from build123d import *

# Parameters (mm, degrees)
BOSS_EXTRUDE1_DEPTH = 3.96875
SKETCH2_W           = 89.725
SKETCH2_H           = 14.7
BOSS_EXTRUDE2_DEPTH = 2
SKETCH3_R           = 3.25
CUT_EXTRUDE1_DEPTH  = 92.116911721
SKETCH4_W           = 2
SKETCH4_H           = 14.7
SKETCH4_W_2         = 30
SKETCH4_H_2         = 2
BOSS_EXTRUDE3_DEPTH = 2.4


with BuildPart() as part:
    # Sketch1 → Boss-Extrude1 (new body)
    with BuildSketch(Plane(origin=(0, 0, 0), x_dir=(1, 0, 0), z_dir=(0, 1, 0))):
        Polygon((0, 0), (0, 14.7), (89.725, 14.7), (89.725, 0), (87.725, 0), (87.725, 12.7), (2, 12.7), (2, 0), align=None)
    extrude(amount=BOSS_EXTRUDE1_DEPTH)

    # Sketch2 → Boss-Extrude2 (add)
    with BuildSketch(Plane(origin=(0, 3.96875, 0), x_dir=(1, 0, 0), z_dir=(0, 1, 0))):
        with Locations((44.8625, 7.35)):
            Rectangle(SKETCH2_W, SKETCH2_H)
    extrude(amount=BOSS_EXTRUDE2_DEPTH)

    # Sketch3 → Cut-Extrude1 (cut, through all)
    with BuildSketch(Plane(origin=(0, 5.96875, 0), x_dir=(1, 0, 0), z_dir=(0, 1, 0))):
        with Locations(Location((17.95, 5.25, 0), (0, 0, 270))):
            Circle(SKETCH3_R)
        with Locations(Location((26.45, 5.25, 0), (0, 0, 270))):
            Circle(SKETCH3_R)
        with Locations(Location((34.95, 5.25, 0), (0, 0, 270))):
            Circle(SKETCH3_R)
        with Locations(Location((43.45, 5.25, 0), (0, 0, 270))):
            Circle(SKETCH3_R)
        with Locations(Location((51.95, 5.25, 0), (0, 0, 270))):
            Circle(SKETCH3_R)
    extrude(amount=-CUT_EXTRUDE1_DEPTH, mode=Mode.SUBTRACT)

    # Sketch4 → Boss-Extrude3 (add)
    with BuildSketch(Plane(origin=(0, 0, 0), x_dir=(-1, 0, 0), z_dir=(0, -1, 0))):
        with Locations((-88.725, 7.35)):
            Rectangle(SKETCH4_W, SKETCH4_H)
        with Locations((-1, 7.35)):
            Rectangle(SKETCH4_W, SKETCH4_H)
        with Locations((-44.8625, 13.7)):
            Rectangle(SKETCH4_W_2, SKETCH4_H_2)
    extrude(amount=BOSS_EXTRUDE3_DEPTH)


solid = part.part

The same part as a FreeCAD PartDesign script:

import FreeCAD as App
import Part
import Sketcher

V = App.Vector

doc = App.newDocument("Part")
params = doc.addObject("Spreadsheet::Sheet", "Params")
for row, (alias, value) in enumerate([
    ("sketch1_width", "2 mm"),
    ("sketch1_height", "14.7 mm"),
    ("sketch1_height2", "12.7 mm"),
    ("pad1_length", "3.96875 mm"),
    ("sketch2_height", "14.7 mm"),
    ("pad2_length", "2 mm"),
    ("sketch3_diameter", "6.5 mm"),
    ("sketch4_width", "2 mm"),
    ("sketch4_width2", "30 mm"),
    ("sketch4_height", "14.7 mm"),
    ("pad3_length", "2.4 mm"),
], start=1):
    params.set(f"A{row}", alias)
    params.set(f"B{row}", "=" + value)
    params.setAlias(f"B{row}", alias)

body = doc.addObject("PartDesign::Body", "Body")

# Sketch on XZ plane
sketch1 = doc.addObject("Sketcher::SketchObject", "Sketch")
body.addObject(sketch1)
sketch1.AttachmentSupport = (doc.XZ_Plane, [""])
sketch1.MapMode = "FlatFace"
sketch1.addGeometry(Part.LineSegment(V(0, -14.7, 0), V(0, 0, 0)), False)
sketch1.addGeometry(Part.LineSegment(V(0, 0, 0), V(2, 0, 0)), False)
sketch1.addGeometry(Part.LineSegment(V(2, 0, 0), V(2, -12.7, 0)), False)
sketch1.addGeometry(Part.LineSegment(V(2, -12.7, 0), V(87.7, -12.7, 0)), False)
sketch1.addGeometry(Part.LineSegment(V(87.7, -12.7, 0), V(87.7, 0, 0)), False)
sketch1.addGeometry(Part.LineSegment(V(87.7, 0, 0), V(89.7, 0, 0)), False)
sketch1.addGeometry(Part.LineSegment(V(89.7, 0, 0), V(89.7, -14.7, 0)), False)
sketch1.addGeometry(Part.LineSegment(V(89.7, -14.7, 0), V(0, -14.7, 0)), False)
sketch1.addConstraint(Sketcher.Constraint("Coincident", 0, 2, 1, 1))
sketch1.addConstraint(Sketcher.Constraint("Coincident", 1, 2, 2, 1))
sketch1.addConstraint(Sketcher.Constraint("Coincident", 2, 2, 3, 1))
sketch1.addConstraint(Sketcher.Constraint("Coincident", 3, 2, 4, 1))
sketch1.addConstraint(Sketcher.Constraint("Coincident", 4, 2, 5, 1))
sketch1.addConstraint(Sketcher.Constraint("Coincident", 5, 2, 6, 1))
sketch1.addConstraint(Sketcher.Constraint("Coincident", 6, 2, 7, 1))
sketch1.addConstraint(Sketcher.Constraint("Coincident", 7, 2, 0, 1))
sketch1.addConstraint(Sketcher.Constraint("Vertical", 0))
sketch1.addConstraint(Sketcher.Constraint("Horizontal", 1))
sketch1.addConstraint(Sketcher.Constraint("Vertical", 2))
sketch1.addConstraint(Sketcher.Constraint("Horizontal", 3))
sketch1.addConstraint(Sketcher.Constraint("Vertical", 4))
sketch1.addConstraint(Sketcher.Constraint("Horizontal", 5))
sketch1.addConstraint(Sketcher.Constraint("Vertical", 6))
sketch1.addConstraint(Sketcher.Constraint("Horizontal", 7))
sketch1.addConstraint(Sketcher.Constraint("Coincident", 0, 2, -1, 1))
sketch1.addConstraint(Sketcher.Constraint("PointOnObject", 4, 2, -1))
sketch1.addConstraint(Sketcher.Constraint("Equal", 1, 5))
sketch1.addConstraint(Sketcher.Constraint("DistanceX", 1, 1, 1, 2, 2.0))
sketch1.addConstraint(Sketcher.Constraint("DistanceY", 0, 1, 0, 2, 14.7))
sketch1.addConstraint(Sketcher.Constraint("DistanceY", 2, 2, 2, 1, 12.7))
sketch1.addConstraint(Sketcher.Constraint("DistanceX", 3, 1, 3, 2, 85.725))
sketch1.setExpression("Constraints[19]", "Params.sketch1_width")
sketch1.setExpression("Constraints[20]", "Params.sketch1_height")
sketch1.setExpression("Constraints[21]", "Params.sketch1_height2")
pad1 = doc.addObject("PartDesign::Pad", "Pad")
body.addObject(pad1)
pad1.Profile = sketch1
pad1.setExpression("Length", "Params.pad1_length")
pad1.Reversed = True

# Sketch on XZ plane
sketch2 = doc.addObject("Sketcher::SketchObject", "Sketch001")
body.addObject(sketch2)
sketch2.AttachmentSupport = (doc.XZ_Plane, [""])
sketch2.MapMode = "FlatFace"
sketch2.AttachmentOffset = App.Placement(V(0, 0, -3.96875), App.Rotation())
sketch2.addGeometry(Part.LineSegment(V(0, -15, 0), V(0, 0, 0)), False)
sketch2.addGeometry(Part.LineSegment(V(0, 0, 0), V(90, 0, 0)), False)
sketch2.addGeometry(Part.LineSegment(V(90, 0, 0), V(90, -15, 0)), False)
sketch2.addGeometry(Part.LineSegment(V(90, -15, 0), V(0, -15, 0)), False)
sketch2.addConstraint(Sketcher.Constraint("Coincident", 0, 2, 1, 1))
sketch2.addConstraint(Sketcher.Constraint("Coincident", 1, 2, 2, 1))
sketch2.addConstraint(Sketcher.Constraint("Coincident", 2, 2, 3, 1))
sketch2.addConstraint(Sketcher.Constraint("Coincident", 3, 2, 0, 1))
sketch2.addConstraint(Sketcher.Constraint("Vertical", 0))
sketch2.addConstraint(Sketcher.Constraint("Horizontal", 1))
sketch2.addConstraint(Sketcher.Constraint("Vertical", 2))
sketch2.addConstraint(Sketcher.Constraint("Horizontal", 3))
sketch2.addConstraint(Sketcher.Constraint("Coincident", 0, 2, -1, 1))
sketch2.addConstraint(Sketcher.Constraint("DistanceY", 0, 1, 0, 2, 14.7))
sketch2.addConstraint(Sketcher.Constraint("DistanceX", 1, 1, 1, 2, 89.725))
sketch2.setExpression("Constraints[9]", "Params.sketch2_height")
pad2 = doc.addObject("PartDesign::Pad", "Pad001")
body.addObject(pad2)
pad2.Profile = sketch2
pad2.setExpression("Length", "Params.pad2_length")
pad2.Reversed = True

# Sketch on XZ plane
sketch3 = doc.addObject("Sketcher::SketchObject", "Sketch002")
body.addObject(sketch3)
sketch3.AttachmentSupport = (doc.XZ_Plane, [""])
sketch3.MapMode = "FlatFace"
sketch3.AttachmentOffset = App.Placement(V(0, 0, -5.96875), App.Rotation())
sketch3.addGeometry(Part.Circle(V(17.9, -5.2, 0), V(0, 0, 1), 3.2), False)
sketch3.addGeometry(Part.Circle(V(26.4, -5.2, 0), V(0, 0, 1), 3.2), False)
sketch3.addGeometry(Part.Circle(V(35, -5.2, 0), V(0, 0, 1), 3.2), False)
sketch3.addGeometry(Part.Circle(V(43.5, -5.2, 0), V(0, 0, 1), 3.2), False)
sketch3.addGeometry(Part.Circle(V(52, -5.2, 0), V(0, 0, 1), 3.2), False)
sketch3.addConstraint(Sketcher.Constraint("Equal", 0, 1))
sketch3.addConstraint(Sketcher.Constraint("Equal", 1, 2))
sketch3.addConstraint(Sketcher.Constraint("Equal", 2, 3))
sketch3.addConstraint(Sketcher.Constraint("Equal", 3, 4))
sketch3.addConstraint(Sketcher.Constraint("Horizontal", 0, 3, 1, 3))
sketch3.addConstraint(Sketcher.Constraint("Horizontal", 1, 3, 2, 3))
sketch3.addConstraint(Sketcher.Constraint("Horizontal", 2, 3, 3, 3))
sketch3.addConstraint(Sketcher.Constraint("Horizontal", 3, 3, 4, 3))
sketch3.addConstraint(Sketcher.Constraint("Diameter", 0, 6.5))
sketch3.addConstraint(Sketcher.Constraint("DistanceX", 0, 3, 2, 3, 17.0))
sketch3.addConstraint(Sketcher.Constraint("DistanceX", 1, 3, 3, 3, 17.0))
sketch3.addConstraint(Sketcher.Constraint("DistanceX", 2, 3, 4, 3, 17.0))
sketch3.addConstraint(Sketcher.Constraint("DistanceX", 0, 3, 1, 3, 8.5))
sketch3.addConstraint(Sketcher.Constraint("DistanceX", -1, 1, 0, 3, 17.95))
sketch3.addConstraint(Sketcher.Constraint("DistanceY", 0, 3, -1, 1, 5.25))
sketch3.setExpression("Constraints[8]", "Params.sketch3_diameter")
pocket1 = doc.addObject("PartDesign::Pocket", "Pocket")
body.addObject(pocket1)
pocket1.Profile = sketch3
pocket1.Type = "ThroughAll"
pocket1.Reversed = True

# Sketch on XZ plane
sketch4 = doc.addObject("Sketcher::SketchObject", "Sketch003")
body.addObject(sketch4)
sketch4.AttachmentSupport = (doc.XZ_Plane, [""])
sketch4.MapMode = "FlatFace"
sketch4.addGeometry(Part.LineSegment(V(89.7, -14.7, 0), V(89.7, 0, 0)), False)
sketch4.addGeometry(Part.LineSegment(V(89.7, 0, 0), V(87.7, 0, 0)), False)
sketch4.addGeometry(Part.LineSegment(V(87.7, 0, 0), V(87.7, -14.7, 0)), False)
sketch4.addGeometry(Part.LineSegment(V(87.7, -14.7, 0), V(89.7, -14.7, 0)), False)
sketch4.addGeometry(Part.LineSegment(V(2, -14.7, 0), V(2, 0, 0)), False)
sketch4.addGeometry(Part.LineSegment(V(2, 0, 0), V(0, 0, 0)), False)
sketch4.addGeometry(Part.LineSegment(V(0, 0, 0), V(0, -14.7, 0)), False)
sketch4.addGeometry(Part.LineSegment(V(0, -14.7, 0), V(2, -14.7, 0)), False)
sketch4.addGeometry(Part.LineSegment(V(59.9, -14.7, 0), V(59.9, -12.7, 0)), False)
sketch4.addGeometry(Part.LineSegment(V(59.9, -12.7, 0), V(29.9, -12.7, 0)), False)
sketch4.addGeometry(Part.LineSegment(V(29.9, -12.7, 0), V(29.9, -14.7, 0)), False)
sketch4.addGeometry(Part.LineSegment(V(29.9, -14.7, 0), V(59.9, -14.7, 0)), False)
sketch4.addConstraint(Sketcher.Constraint("Coincident", 0, 2, 1, 1))
sketch4.addConstraint(Sketcher.Constraint("Coincident", 1, 2, 2, 1))
sketch4.addConstraint(Sketcher.Constraint("Coincident", 2, 2, 3, 1))
sketch4.addConstraint(Sketcher.Constraint("Coincident", 3, 2, 0, 1))
sketch4.addConstraint(Sketcher.Constraint("Coincident", 4, 2, 5, 1))
sketch4.addConstraint(Sketcher.Constraint("Coincident", 5, 2, 6, 1))
sketch4.addConstraint(Sketcher.Constraint("Coincident", 6, 2, 7, 1))
sketch4.addConstraint(Sketcher.Constraint("Coincident", 7, 2, 4, 1))
sketch4.addConstraint(Sketcher.Constraint("Coincident", 8, 2, 9, 1))
sketch4.addConstraint(Sketcher.Constraint("Coincident", 9, 2, 10, 1))
sketch4.addConstraint(Sketcher.Constraint("Coincident", 10, 2, 11, 1))
sketch4.addConstraint(Sketcher.Constraint("Coincident", 11, 2, 8, 1))
sketch4.addConstraint(Sketcher.Constraint("Vertical", 0))
sketch4.addConstraint(Sketcher.Constraint("Horizontal", 1))
sketch4.addConstraint(Sketcher.Constraint("Vertical", 2))
sketch4.addConstraint(Sketcher.Constraint("Horizontal", 3))
sketch4.addConstraint(Sketcher.Constraint("Vertical", 4))
sketch4.addConstraint(Sketcher.Constraint("Horizontal", 5))
sketch4.addConstraint(Sketcher.Constraint("Vertical", 6))
sketch4.addConstraint(Sketcher.Constraint("Horizontal", 7))
sketch4.addConstraint(Sketcher.Constraint("Vertical", 8))
sketch4.addConstraint(Sketcher.Constraint("Horizontal", 9))
sketch4.addConstraint(Sketcher.Constraint("Vertical", 10))
sketch4.addConstraint(Sketcher.Constraint("Horizontal", 11))
sketch4.addConstraint(Sketcher.Constraint("Coincident", 5, 2, -1, 1))
sketch4.addConstraint(Sketcher.Constraint("PointOnObject", 0, 2, -1))
sketch4.addConstraint(Sketcher.Constraint("Horizontal", 3, 2, 6, 2))
sketch4.addConstraint(Sketcher.Constraint("Horizontal", 7, 2, 10, 2))
sketch4.addConstraint(Sketcher.Constraint("Equal", 3, 5))
sketch4.addConstraint(Sketcher.Constraint("Equal", 7, 8))
sketch4.addConstraint(Sketcher.Constraint("DistanceX", 1, 2, 1, 1, 2.0))
sketch4.addConstraint(Sketcher.Constraint("DistanceX", 9, 2, 9, 1, 30.0))
sketch4.addConstraint(Sketcher.Constraint("DistanceY", 0, 1, 0, 2, 14.7))
sketch4.addConstraint(Sketcher.Constraint("DistanceX", -1, 1, 0, 2, 89.725))
sketch4.addConstraint(Sketcher.Constraint("DistanceX", -1, 1, 8, 2, 59.8625))
sketch4.setExpression("Constraints[30]", "Params.sketch4_width")
sketch4.setExpression("Constraints[31]", "Params.sketch4_width2")
sketch4.setExpression("Constraints[32]", "Params.sketch4_height")
pad3 = doc.addObject("PartDesign::Pad", "Pad002")
body.addObject(pad3)
pad3.Profile = sketch4
pad3.setExpression("Length", "Params.pad3_length")

doc.recompute()
